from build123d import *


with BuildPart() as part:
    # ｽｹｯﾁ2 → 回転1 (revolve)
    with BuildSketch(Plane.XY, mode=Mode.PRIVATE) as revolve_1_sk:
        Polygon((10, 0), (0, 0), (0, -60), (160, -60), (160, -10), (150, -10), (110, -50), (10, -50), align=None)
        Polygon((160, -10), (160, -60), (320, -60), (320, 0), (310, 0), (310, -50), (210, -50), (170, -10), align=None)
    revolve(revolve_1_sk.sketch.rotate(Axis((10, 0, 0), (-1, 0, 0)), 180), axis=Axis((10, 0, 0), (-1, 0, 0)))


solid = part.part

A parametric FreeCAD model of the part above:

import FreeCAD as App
import Part
import Sketcher
Q = App.Units.Quantity


def add_polygon(sketch, points):
    """Adds a closed chain of lines whose ends are joined by coincident constraints."""
    first, n = sketch.GeometryCount, len(points)
    for a, b in zip(points, points[1:] + points[:1]):
        sketch.addGeometry(Part.LineSegment(App.Vector(*a, 0), App.Vector(*b, 0)), False)
    for i in range(n):
        sketch.addConstraint(Sketcher.Constraint("Coincident", first + i, 2, first + (i + 1) % n, 1))

doc = App.newDocument("Part")
params = doc.addObject("Spreadsheet::Sheet", "Params")
for row, (alias, value) in enumerate([
    ("sketch1_width", "10 mm"),
    ("sketch1_width2", "320 mm"),
    ("sketch1_width3", "100 mm"),
    ("sketch1_width4", "20 mm"),
    ("sketch1_height", "60 mm"),
    ("revolution_angle", "360 deg"),
], start=1):
    params.set(f"A{row}", alias)
    params.set(f"B{row}", "=" + value)
    params.setAlias(f"B{row}", alias)

body = doc.addObject("PartDesign::Body", "Body")

# Sketch on XY plane
sketch1 = body.newObject("Sketcher::SketchObject", "Sketch")
sketch1.AttachmentSupport = (doc.getObject("XY_Plane"), [""])
sketch1.MapMode = "FlatFace"
add_polygon(sketch1, [(10, 0), (0, 0), (0, -60), (320, -60), (320, 0), (310, 0), (310, -50), (210, -50), (170, -10), (150, -10), (110, -50), (10, -50)])  # lines 0-11
sketch1.addConstraint([
    Sketcher.Constraint("Horizontal", 0),
    Sketcher.Constraint("Vertical", 1),
    Sketcher.Constraint("Horizontal", 2),
    Sketcher.Constraint("Vertical", 3),
    Sketcher.Constraint("Horizontal", 4),
    Sketcher.Constraint("Vertical", 5),
    Sketcher.Constraint("Horizontal", 6),
    Sketcher.Constraint("Horizontal", 8),
    Sketcher.Constraint("Horizontal", 10),
    Sketcher.Constraint("Vertical", 11),
    Sketcher.Constraint("Coincident", 0, 2, -1, 1),
    Sketcher.Constraint("PointOnObject", 3, 2, -1),
    Sketcher.Constraint("Perpendicular", 7, 9),
    Sketcher.Constraint("Horizontal", 6, 2, 9, 2),
    Sketcher.Constraint("Equal", 0, 4),
    Sketcher.Constraint("Equal", 6, 10),
    Sketcher.Constraint("Equal", 7, 9),
    Sketcher.Constraint("DistanceX", 0, 2, 0, 1, Q("10 mm")),
    Sketcher.Constraint("DistanceX", 2, 1, 2, 2, Q("320 mm")),
    Sketcher.Constraint("DistanceX", 6, 2, 6, 1, Q("100 mm")),
    Sketcher.Constraint("DistanceX", 8, 2, 8, 1, Q("20 mm")),
    Sketcher.Constraint("DistanceY", 1, 2, 1, 1, Q("60 mm")),
    Sketcher.Constraint("DistanceY", 5, 2, 5, 1, Q("50 mm")),
])
sketch1.setExpression("Constraints[29]", "Params.sketch1_width")
sketch1.setExpression("Constraints[30]", "Params.sketch1_width2")
sketch1.setExpression("Constraints[31]", "Params.sketch1_width3")
sketch1.setExpression("Constraints[32]", "Params.sketch1_width4")
sketch1.setExpression("Constraints[33]", "Params.sketch1_height")
revolution = body.newObject("PartDesign::Revolution", "Revolution")
revolution.Profile = sketch1
revolution.ReferenceAxis = (sketch1, ["H_Axis"])
revolution.setExpression("Angle", "Params.revolution_angle")

doc.recompute()
